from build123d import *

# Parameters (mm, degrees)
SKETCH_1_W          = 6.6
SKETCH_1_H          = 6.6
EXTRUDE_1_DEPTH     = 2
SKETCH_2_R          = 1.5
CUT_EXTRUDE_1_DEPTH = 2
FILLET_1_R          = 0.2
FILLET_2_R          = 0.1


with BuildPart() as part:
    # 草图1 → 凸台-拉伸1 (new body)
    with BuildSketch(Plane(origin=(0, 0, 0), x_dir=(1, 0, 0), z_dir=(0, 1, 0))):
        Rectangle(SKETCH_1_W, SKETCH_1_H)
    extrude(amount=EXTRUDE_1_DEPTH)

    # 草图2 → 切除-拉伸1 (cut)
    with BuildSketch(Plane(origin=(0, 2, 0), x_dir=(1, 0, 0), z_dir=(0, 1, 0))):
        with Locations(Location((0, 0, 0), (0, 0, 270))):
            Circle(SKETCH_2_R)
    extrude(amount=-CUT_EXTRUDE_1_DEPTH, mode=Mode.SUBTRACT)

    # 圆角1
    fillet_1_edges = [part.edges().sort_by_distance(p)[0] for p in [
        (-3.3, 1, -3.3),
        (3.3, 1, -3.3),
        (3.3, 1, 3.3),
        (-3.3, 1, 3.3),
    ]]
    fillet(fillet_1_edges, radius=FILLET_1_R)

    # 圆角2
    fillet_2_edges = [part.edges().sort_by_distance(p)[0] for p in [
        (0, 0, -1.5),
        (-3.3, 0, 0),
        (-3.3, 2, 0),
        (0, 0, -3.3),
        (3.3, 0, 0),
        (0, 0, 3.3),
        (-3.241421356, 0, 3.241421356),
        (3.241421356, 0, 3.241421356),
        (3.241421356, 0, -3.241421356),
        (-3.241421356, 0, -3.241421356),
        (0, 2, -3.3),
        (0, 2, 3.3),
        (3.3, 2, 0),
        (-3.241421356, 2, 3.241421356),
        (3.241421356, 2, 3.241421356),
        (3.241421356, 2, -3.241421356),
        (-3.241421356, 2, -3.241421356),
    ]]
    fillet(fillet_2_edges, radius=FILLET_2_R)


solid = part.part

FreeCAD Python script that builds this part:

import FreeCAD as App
import Part
import Sketcher


def edges_at(feature, points):
    """Names of the edges that pass closest to the given points."""
    edges = feature.Shape.Edges
    near = lambda p: min(range(len(edges)), key=lambda i: edges[i].distToShape(Part.Vertex(*p))[0])
    return sorted({f"Edge{near(p) + 1}" for p in points})


def add_polygon(sketch, points):
    """Adds a closed chain of lines whose ends are joined by coincident constraints."""
    first, n = sketch.GeometryCount, len(points)
    for a, b in zip(points, points[1:] + points[:1]):
        sketch.addGeometry(Part.LineSegment(App.Vector(*a, 0), App.Vector(*b, 0)), False)
    for i in range(n):
        sketch.addConstraint(Sketcher.Constraint("Coincident", first + i, 2, first + (i + 1) % n, 1))

doc = App.newDocument("Part")
body = doc.addObject("PartDesign::Body", "Body")

# Sketch on XZ plane
sketch1 = body.newObject("Sketcher::SketchObject", "Sketch")
sketch1.AttachmentSupport = (doc.getObject("XZ_Plane"), [""])
sketch1.MapMode = "FlatFace"
add_polygon(sketch1, [(-3, -3), (-3, 3), (3, 3), (3, -3)])  # lines 0-3
sketch1.addConstraint(Sketcher.Constraint("Vertical", 0))
sketch1.addConstraint(Sketcher.Constraint("Horizontal", 1))
sketch1.addConstraint(Sketcher.Constraint("Vertical", 2))
sketch1.addConstraint(Sketcher.Constraint("Horizontal", 3))
sketch1.addConstraint(Sketcher.Constraint("Symmetric", 0, 2, 2, 2, -1, 1))
sketch1.addConstraint(Sketcher.Constraint("Equal", 3, 0))
sketch1.addConstraint(Sketcher.Constraint("DistanceX", 1, 1, 1, 2, 6.6))
pad1 = body.newObject("PartDesign::Pad", "Pad")
pad1.Profile = sketch1
pad1.Length = 2
pad1.Reversed = True

# Sketch on XZ plane
sketch2 = body.newObject("Sketcher::SketchObject", "Sketch001")
sketch2.AttachmentSupport = (doc.getObject("XZ_Plane"), [""])
sketch2.MapMode = "FlatFace"
sketch2.AttachmentOffset = App.Placement(App.Vector(0, 0, -2), App.Rotation())
sketch2.addGeometry(Part.Circle(App.Vector(0, 0, 0), App.Vector(0, 0, 1), 1.5), False)
sketch2.addConstraint(Sketcher.Constraint("Coincident", 0, 3, -1, 1))
sketch2.addConstraint(Sketcher.Constraint("Diameter", 0, 3.0))
pocket1 = body.newObject("PartDesign::Pocket", "Pocket")
pocket1.Profile = sketch2
pocket1.Length = 2
pocket1.Reversed = True
doc.recompute()

fillet = body.newObject("PartDesign::Fillet", "Fillet")
fillet.Base = (pocket1, edges_at(pocket1, [
    (-3.3, 1, -3.3),
    (3.3, 1, -3.3),
    (3.3, 1, 3.3),
    (-3.3, 1, 3.3),
]))
fillet.Radius = 0.2
doc.recompute()

fillet2 = body.newObject("PartDesign::Fillet", "Fillet001")
fillet2.Base = (fillet, edges_at(fillet, [
    (0, 0, -1.5),
    (-3.3, 0, 0),
    (-3.3, 2, 0),
    (0, 0, -3.3),
    (3.3, 0, 0),
    (0, 0, 3.3),
    (-3.241, 0, 3.241),
    (3.241, 0, 3.241),
    (3.241, 0, -3.241),
    (-3.241, 0, -3.241),
    (0, 2, -3.3),
    (0, 2, 3.3),
    (3.3, 2, 0),
    (-3.241, 2, 3.241),
    (3.241, 2, 3.241),
    (3.241, 2, -3.241),
    (-3.241, 2, -3.241),
]))
fillet2.Radius = 0.1

doc.recompute()
